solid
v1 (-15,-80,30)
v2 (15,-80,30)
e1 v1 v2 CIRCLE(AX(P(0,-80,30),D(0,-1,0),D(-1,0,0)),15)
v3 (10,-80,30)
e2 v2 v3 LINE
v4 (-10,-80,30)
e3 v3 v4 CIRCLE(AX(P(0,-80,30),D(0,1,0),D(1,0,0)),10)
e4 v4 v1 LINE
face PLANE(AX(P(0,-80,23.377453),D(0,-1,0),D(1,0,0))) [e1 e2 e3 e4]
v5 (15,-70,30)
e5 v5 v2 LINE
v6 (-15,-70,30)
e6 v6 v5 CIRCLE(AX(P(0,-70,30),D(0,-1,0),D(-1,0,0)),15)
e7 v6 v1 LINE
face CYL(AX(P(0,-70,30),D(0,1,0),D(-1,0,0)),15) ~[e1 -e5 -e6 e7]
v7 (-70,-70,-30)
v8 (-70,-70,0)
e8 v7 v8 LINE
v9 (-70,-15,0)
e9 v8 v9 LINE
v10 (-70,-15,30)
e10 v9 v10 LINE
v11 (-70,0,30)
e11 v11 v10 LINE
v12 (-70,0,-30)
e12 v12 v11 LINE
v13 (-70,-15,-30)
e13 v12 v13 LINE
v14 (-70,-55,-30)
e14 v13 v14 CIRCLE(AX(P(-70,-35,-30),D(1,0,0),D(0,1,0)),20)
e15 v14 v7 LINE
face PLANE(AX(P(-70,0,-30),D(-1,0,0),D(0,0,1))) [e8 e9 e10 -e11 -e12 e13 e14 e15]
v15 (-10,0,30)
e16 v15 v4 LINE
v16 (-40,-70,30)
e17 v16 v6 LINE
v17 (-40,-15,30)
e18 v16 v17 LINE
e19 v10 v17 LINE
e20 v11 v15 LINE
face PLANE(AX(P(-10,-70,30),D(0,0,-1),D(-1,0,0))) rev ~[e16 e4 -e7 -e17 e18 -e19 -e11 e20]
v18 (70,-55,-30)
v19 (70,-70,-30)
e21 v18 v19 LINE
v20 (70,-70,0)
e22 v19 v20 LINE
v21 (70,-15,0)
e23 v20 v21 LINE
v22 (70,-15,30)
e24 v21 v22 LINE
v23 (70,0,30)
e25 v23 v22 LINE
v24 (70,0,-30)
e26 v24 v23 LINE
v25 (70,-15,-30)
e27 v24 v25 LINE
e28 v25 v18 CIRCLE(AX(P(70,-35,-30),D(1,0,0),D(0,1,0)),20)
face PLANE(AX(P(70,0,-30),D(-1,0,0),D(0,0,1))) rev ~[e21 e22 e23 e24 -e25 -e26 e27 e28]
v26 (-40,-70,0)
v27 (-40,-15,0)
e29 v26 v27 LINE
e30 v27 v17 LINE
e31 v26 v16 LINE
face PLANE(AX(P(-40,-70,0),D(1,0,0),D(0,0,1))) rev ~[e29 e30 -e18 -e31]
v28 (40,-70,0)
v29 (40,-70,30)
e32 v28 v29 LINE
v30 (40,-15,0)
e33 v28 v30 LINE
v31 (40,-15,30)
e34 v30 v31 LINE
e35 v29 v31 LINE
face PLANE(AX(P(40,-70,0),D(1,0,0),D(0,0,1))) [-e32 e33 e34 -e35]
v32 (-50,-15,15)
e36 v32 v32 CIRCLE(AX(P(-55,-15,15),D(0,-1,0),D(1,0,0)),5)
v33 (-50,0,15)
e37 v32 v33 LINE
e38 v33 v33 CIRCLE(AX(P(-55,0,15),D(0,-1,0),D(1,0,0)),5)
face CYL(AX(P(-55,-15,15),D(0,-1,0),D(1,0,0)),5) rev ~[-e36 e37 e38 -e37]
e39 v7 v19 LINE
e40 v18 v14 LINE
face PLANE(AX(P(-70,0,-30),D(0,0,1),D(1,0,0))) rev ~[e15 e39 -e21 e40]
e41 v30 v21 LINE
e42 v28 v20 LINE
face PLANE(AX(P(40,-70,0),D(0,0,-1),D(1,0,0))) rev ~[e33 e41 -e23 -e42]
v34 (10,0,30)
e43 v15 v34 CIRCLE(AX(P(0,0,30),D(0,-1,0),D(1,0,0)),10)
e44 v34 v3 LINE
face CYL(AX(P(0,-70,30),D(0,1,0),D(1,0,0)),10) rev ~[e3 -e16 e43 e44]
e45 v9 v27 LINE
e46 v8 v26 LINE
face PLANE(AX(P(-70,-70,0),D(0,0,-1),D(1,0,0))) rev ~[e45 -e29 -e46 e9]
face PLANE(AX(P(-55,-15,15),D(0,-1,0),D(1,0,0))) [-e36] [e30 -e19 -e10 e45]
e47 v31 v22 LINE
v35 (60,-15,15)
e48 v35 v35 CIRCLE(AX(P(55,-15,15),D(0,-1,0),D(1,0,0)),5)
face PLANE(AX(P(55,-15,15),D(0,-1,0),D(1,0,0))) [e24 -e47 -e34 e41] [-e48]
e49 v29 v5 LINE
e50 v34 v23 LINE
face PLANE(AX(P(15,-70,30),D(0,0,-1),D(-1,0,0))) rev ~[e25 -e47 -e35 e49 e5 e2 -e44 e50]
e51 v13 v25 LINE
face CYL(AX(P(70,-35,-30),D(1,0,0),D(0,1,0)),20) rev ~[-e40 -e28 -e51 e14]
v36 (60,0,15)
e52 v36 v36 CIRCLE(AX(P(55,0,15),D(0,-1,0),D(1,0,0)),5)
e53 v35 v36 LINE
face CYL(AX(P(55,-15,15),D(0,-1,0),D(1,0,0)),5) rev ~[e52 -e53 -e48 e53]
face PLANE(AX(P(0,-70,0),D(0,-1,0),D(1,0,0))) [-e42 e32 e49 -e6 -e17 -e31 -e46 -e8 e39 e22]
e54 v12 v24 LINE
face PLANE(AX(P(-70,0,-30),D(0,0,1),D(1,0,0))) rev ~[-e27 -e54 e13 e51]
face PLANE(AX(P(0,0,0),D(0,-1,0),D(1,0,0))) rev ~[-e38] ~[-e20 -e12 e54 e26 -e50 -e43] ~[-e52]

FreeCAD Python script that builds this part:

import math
import FreeCAD as App
import Part
import Sketcher
Q = App.Units.Quantity

doc = App.newDocument("Part")
body = doc.addObject("PartDesign::Body", "Body")

# Sketch on XZ plane
sketch1 = doc.addObject("Sketcher::SketchObject", "Sketch")
body.addObject(sketch1)
sketch1.AttachmentSupport = (doc.XZ_Plane, [""])
sketch1.MapMode = "FlatFace"
sketch1.addGeometry([
    Part.LineSegment(App.Vector(-70, 30, 0), App.Vector(-70, -30, 0)),
    Part.LineSegment(App.Vector(-70, -30, 0), App.Vector(70, -30, 0)),
    Part.LineSegment(App.Vector(70, -30, 0), App.Vector(70, 30, 0)),
    Part.LineSegment(App.Vector(70, 30, 0), App.Vector(-70, 30, 0)),
], False)
sketch1.addConstraint([
    Sketcher.Constraint("Coincident", 0, 2, 1, 1),
    Sketcher.Constraint("Coincident", 1, 2, 2, 1),
    Sketcher.Constraint("Coincident", 2, 2, 3, 1),
    Sketcher.Constraint("Coincident", 3, 2, 0, 1),
    Sketcher.Constraint("Vertical", 0),
    Sketcher.Constraint("Horizontal", 1),
    Sketcher.Constraint("Vertical", 2),
    Sketcher.Constraint("Horizontal", 3),
    Sketcher.Constraint("Symmetric", 0, 2, 2, 2, -1, 1),
    Sketcher.Constraint("DistanceX", 1, 1, 1, 2, Q("140 mm")),
    Sketcher.Constraint("DistanceY", 0, 2, 0, 1, Q("60 mm")),
])
pad1 = doc.addObject("PartDesign::Pad", "Pad")
body.addObject(pad1)
pad1.Profile = sketch1
pad1.Length = 70

# Sketch on YZ plane
sketch2 = doc.addObject("Sketcher::SketchObject", "Sketch001")
body.addObject(sketch2)
sketch2.AttachmentSupport = (doc.YZ_Plane, [""])
sketch2.MapMode = "FlatFace"
sketch2.AttachmentOffset = App.Placement(App.Vector(0, 0, 70), App.Rotation())
sketch2.addGeometry([
    Part.LineSegment(App.Vector(-55, -30, 0), App.Vector(-15, -30, 0)),
    Part.ArcOfCircle(Part.Circle(App.Vector(-35, -30, 0), App.Vector(0, 0, 1), 20), math.radians(0), math.radians(180)),
], False)
sketch2.addConstraint([
    Sketcher.Constraint("Coincident", 0, 1, 1, 2),
    Sketcher.Constraint("Coincident", 1, 1, 0, 2),
    Sketcher.Constraint("Horizontal", 0),
    Sketcher.Constraint("Horizontal", 1, 3, 0, 1),
    Sketcher.Constraint("Radius", 1, Q("20 mm")),
    Sketcher.Constraint("DistanceX", 1, 3, -1, 1, Q("35 mm")),
    Sketcher.Constraint("DistanceY", 1, 3, -1, 1, Q("30 mm")),
])
pocket1 = doc.addObject("PartDesign::Pocket", "Pocket")
body.addObject(pocket1)
pocket1.Profile = sketch2
pocket1.Length = 330
pocket1.Midplane = True

# Sketch on XZ plane
sketch3 = doc.addObject("Sketcher::SketchObject", "Sketch002")
body.addObject(sketch3)
sketch3.AttachmentSupport = (doc.XZ_Plane, [""])
sketch3.MapMode = "FlatFace"
sketch3.AttachmentOffset = App.Placement(App.Vector(0, 0, 70), App.Rotation())
sketch3.addGeometry([
    Part.LineSegment(App.Vector(40, 30, 0), App.Vector(40, 0, 0)),
    Part.LineSegment(App.Vector(40, 0, 0), App.Vector(70, 0, 0)),
    Part.LineSegment(App.Vector(70, 0, 0), App.Vector(70, 30, 0)),
    Part.LineSegment(App.Vector(70, 30, 0), App.Vector(40, 30, 0)),
], False)
sketch3.addConstraint([
    Sketcher.Constraint("Coincident", 0, 2, 1, 1),
    Sketcher.Constraint("Coincident", 1, 2, 2, 1),
    Sketcher.Constraint("Coincident", 2, 2, 3, 1),
    Sketcher.Constraint("Coincident", 3, 2, 0, 1),
    Sketcher.Constraint("Vertical", 0),
    Sketcher.Constraint("Horizontal", 1),
    Sketcher.Constraint("Vertical", 2),
    Sketcher.Constraint("Horizontal", 3),
    Sketcher.Constraint("PointOnObject", 0, 2, -1),
    Sketcher.Constraint("Equal", 3, 0),
    Sketcher.Constraint("DistanceX", 1, 1, 1, 2, Q("30 mm")),
    Sketcher.Constraint("DistanceX", -1, 1, 0, 2, Q("40 mm")),
])
pocket2 = doc.addObject("PartDesign::Pocket", "Pocket001")
body.addObject(pocket2)
pocket2.Profile = sketch3
pocket2.Length = 55

# Sketch on XZ plane
sketch4 = doc.addObject("Sketcher::SketchObject", "Sketch003")
body.addObject(sketch4)
sketch4.AttachmentSupport = (doc.XZ_Plane, [""])
sketch4.MapMode = "FlatFace"
sketch4.AttachmentOffset = App.Placement(App.Vector(0, 0, 70), App.Rotation())
sketch4.addGeometry([
    Part.LineSegment(App.Vector(-70, 30, 0), App.Vector(-70, 0, 0)),
    Part.LineSegment(App.Vector(-70, 0, 0), App.Vector(-40, 0, 0)),
    Part.LineSegment(App.Vector(-40, 0, 0), App.Vector(-40, 30, 0)),
    Part.LineSegment(App.Vector(-40, 30, 0), App.Vector(-70, 30, 0)),
], False)
sketch4.addConstraint([
    Sketcher.Constraint("Coincident", 0, 2, 1, 1),
    Sketcher.Constraint("Coincident", 1, 2, 2, 1),
    Sketcher.Constraint("Coincident", 2, 2, 3, 1),
    Sketcher.Constraint("Coincident", 3, 2, 0, 1),
    Sketcher.Constraint("Vertical", 0),
    Sketcher.Constraint("Horizontal", 1),
    Sketcher.Constraint("Vertical", 2),
    Sketcher.Constraint("Horizontal", 3),
    Sketcher.Constraint("PointOnObject", 0, 2, -1),
    Sketcher.Constraint("Equal", 3, 0),
    Sketcher.Constraint("DistanceX", 1, 1, 1, 2, Q("30 mm")),
    Sketcher.Constraint("DistanceX", 0, 2, -1, 1, Q("70 mm")),
])
pocket3 = doc.addObject("PartDesign::Pocket", "Pocket002")
body.addObject(pocket3)
pocket3.Profile = sketch4
pocket3.Length = 55

# Sketch on XZ plane
sketch5 = doc.addObject("Sketcher::SketchObject", "Sketch004")
body.addObject(sketch5)
sketch5.AttachmentSupport = (doc.XZ_Plane, [""])
sketch5.MapMode = "FlatFace"
sketch5.AttachmentOffset = App.Placement(App.Vector(0, 0, 15), App.Rotation())
sketch5.addGeometry(Part.Circle(App.Vector(55, 15, 0), App.Vector(0, 0, 1), 5), False)
sketch5.addConstraint([
    Sketcher.Constraint("Diameter", 0, Q("10 mm")),
    Sketcher.Constraint("DistanceX", -1, 1, 0, 3, Q("55 mm")),
    Sketcher.Constraint("DistanceY", -1, 1, 0, 3, Q("15 mm")),
])
pocket4 = doc.addObject("PartDesign::Pocket", "Pocket003")
body.addObject(pocket4)
pocket4.Profile = sketch5
pocket4.Length = 40

# Sketch on XZ plane
sketch6 = doc.addObject("Sketcher::SketchObject", "Sketch005")
body.addObject(sketch6)
sketch6.AttachmentSupport = (doc.XZ_Plane, [""])
sketch6.MapMode = "FlatFace"
sketch6.AttachmentOffset = App.Placement(App.Vector(0, 0, 15), App.Rotation())
sketch6.addGeometry(Part.Circle(App.Vector(-55, 15, 0), App.Vector(0, 0, 1), 5), False)
sketch6.addConstraint([
    Sketcher.Constraint("Diameter", 0, Q("10 mm")),
    Sketcher.Constraint("DistanceX", 0, 3, -1, 1, Q("55 mm")),
    Sketcher.Constraint("DistanceY", -1, 1, 0, 3, Q("15 mm")),
])
pocket5 = doc.addObject("PartDesign::Pocket", "Pocket004")
body.addObject(pocket5)
pocket5.Profile = sketch6
pocket5.Length = 40

# Sketch on XZ plane
sketch7 = doc.addObject("Sketcher::SketchObject", "Sketch006")
body.addObject(sketch7)
sketch7.AttachmentSupport = (doc.XZ_Plane, [""])
sketch7.MapMode = "FlatFace"
sketch7.AttachmentOffset = App.Placement(App.Vector(0, 0, 70), App.Rotation())
sketch7.addGeometry([
    Part.ArcOfCircle(Part.Circle(App.Vector(0, 30, 0), App.Vector(0, 0, 1), 10), math.radians(180), math.radians(360)),
    Part.LineSegment(App.Vector(10, 30, 0), App.Vector(15, 30, 0)),
    Part.ArcOfCircle(Part.Circle(App.Vector(0, 30, 0), App.Vector(0, 0, 1), 15), math.radians(0), math.radians(180)),
    Part.LineSegment(App.Vector(-15, 30, 0), App.Vector(-10, 30, 0)),
], False)
sketch7.addConstraint([
    Sketcher.Constraint("Coincident", 0, 2, 1, 1),
    Sketcher.Constraint("Coincident", 1, 2, 2, 1),
    Sketcher.Constraint("Coincident", 2, 2, 3, 1),
    Sketcher.Constraint("Coincident", 3, 2, 0, 1),
    Sketcher.Constraint("Horizontal", 1),
    Sketcher.Constraint("Horizontal", 3),
    Sketcher.Constraint("Coincident", 2, 3, 0, 3),
    Sketcher.Constraint("Symmetric", 1, 2, 2, 2, -2),
    Sketcher.Constraint("Horizontal", 2, 3, 0, 2),
    Sketcher.Constraint("Radius", 0, Q("10 mm")),
    Sketcher.Constraint("Radius", 2, Q("15 mm")),
    Sketcher.Constraint("DistanceY", -1, 1, 0, 3, Q("30 mm")),
])
pocket6 = doc.addObject("PartDesign::Pocket", "Pocket005")
body.addObject(pocket6)
pocket6.Profile = sketch7
pocket6.Length = 100

# Sketch on XZ plane
sketch8 = doc.addObject("Sketcher::SketchObject", "Sketch007")
body.addObject(sketch8)
sketch8.AttachmentSupport = (doc.XZ_Plane, [""])
sketch8.MapMode = "FlatFace"
sketch8.AttachmentOffset = App.Placement(App.Vector(0, 0, 70), App.Rotation())
sketch8.addGeometry([
    Part.LineSegment(App.Vector(15, 30, 0), App.Vector(10, 30, 0)),
    Part.ArcOfCircle(Part.Circle(App.Vector(0, 30, 0), App.Vector(0, 0, 1), 10), math.radians(180), math.radians(360)),
    Part.LineSegment(App.Vector(-10, 30, 0), App.Vector(-15, 30, 0)),
    Part.ArcOfCircle(Part.Circle(App.Vector(0, 30, 0), App.Vector(0, 0, 1), 15), math.radians(180), math.radians(360)),
], False)
sketch8.addConstraint([
    Sketcher.Constraint("Coincident", 0, 2, 1, 2),
    Sketcher.Constraint("Coincident", 1, 1, 2, 1),
    Sketcher.Constraint("Coincident", 2, 2, 3, 1),
    Sketcher.Constraint("Coincident", 3, 2, 0, 1),
    Sketcher.Constraint("Horizontal", 0),
    Sketcher.Constraint("Horizontal", 2),
    Sketcher.Constraint("Coincident", 3, 3, 1, 3),
    Sketcher.Constraint("Symmetric", 0, 2, 1, 1, -2),
    Sketcher.Constraint("Horizontal", 3, 3, 0, 2),
    Sketcher.Constraint("Radius", 1, Q("10 mm")),
    Sketcher.Constraint("Radius", 3, Q("15 mm")),
    Sketcher.Constraint("DistanceY", -1, 1, 1, 3, Q("30 mm")),
])
pad2 = doc.addObject("PartDesign::Pad", "Pad001")
body.addObject(pad2)
pad2.Profile = sketch8
pad2.Length = 10

doc.recompute()
